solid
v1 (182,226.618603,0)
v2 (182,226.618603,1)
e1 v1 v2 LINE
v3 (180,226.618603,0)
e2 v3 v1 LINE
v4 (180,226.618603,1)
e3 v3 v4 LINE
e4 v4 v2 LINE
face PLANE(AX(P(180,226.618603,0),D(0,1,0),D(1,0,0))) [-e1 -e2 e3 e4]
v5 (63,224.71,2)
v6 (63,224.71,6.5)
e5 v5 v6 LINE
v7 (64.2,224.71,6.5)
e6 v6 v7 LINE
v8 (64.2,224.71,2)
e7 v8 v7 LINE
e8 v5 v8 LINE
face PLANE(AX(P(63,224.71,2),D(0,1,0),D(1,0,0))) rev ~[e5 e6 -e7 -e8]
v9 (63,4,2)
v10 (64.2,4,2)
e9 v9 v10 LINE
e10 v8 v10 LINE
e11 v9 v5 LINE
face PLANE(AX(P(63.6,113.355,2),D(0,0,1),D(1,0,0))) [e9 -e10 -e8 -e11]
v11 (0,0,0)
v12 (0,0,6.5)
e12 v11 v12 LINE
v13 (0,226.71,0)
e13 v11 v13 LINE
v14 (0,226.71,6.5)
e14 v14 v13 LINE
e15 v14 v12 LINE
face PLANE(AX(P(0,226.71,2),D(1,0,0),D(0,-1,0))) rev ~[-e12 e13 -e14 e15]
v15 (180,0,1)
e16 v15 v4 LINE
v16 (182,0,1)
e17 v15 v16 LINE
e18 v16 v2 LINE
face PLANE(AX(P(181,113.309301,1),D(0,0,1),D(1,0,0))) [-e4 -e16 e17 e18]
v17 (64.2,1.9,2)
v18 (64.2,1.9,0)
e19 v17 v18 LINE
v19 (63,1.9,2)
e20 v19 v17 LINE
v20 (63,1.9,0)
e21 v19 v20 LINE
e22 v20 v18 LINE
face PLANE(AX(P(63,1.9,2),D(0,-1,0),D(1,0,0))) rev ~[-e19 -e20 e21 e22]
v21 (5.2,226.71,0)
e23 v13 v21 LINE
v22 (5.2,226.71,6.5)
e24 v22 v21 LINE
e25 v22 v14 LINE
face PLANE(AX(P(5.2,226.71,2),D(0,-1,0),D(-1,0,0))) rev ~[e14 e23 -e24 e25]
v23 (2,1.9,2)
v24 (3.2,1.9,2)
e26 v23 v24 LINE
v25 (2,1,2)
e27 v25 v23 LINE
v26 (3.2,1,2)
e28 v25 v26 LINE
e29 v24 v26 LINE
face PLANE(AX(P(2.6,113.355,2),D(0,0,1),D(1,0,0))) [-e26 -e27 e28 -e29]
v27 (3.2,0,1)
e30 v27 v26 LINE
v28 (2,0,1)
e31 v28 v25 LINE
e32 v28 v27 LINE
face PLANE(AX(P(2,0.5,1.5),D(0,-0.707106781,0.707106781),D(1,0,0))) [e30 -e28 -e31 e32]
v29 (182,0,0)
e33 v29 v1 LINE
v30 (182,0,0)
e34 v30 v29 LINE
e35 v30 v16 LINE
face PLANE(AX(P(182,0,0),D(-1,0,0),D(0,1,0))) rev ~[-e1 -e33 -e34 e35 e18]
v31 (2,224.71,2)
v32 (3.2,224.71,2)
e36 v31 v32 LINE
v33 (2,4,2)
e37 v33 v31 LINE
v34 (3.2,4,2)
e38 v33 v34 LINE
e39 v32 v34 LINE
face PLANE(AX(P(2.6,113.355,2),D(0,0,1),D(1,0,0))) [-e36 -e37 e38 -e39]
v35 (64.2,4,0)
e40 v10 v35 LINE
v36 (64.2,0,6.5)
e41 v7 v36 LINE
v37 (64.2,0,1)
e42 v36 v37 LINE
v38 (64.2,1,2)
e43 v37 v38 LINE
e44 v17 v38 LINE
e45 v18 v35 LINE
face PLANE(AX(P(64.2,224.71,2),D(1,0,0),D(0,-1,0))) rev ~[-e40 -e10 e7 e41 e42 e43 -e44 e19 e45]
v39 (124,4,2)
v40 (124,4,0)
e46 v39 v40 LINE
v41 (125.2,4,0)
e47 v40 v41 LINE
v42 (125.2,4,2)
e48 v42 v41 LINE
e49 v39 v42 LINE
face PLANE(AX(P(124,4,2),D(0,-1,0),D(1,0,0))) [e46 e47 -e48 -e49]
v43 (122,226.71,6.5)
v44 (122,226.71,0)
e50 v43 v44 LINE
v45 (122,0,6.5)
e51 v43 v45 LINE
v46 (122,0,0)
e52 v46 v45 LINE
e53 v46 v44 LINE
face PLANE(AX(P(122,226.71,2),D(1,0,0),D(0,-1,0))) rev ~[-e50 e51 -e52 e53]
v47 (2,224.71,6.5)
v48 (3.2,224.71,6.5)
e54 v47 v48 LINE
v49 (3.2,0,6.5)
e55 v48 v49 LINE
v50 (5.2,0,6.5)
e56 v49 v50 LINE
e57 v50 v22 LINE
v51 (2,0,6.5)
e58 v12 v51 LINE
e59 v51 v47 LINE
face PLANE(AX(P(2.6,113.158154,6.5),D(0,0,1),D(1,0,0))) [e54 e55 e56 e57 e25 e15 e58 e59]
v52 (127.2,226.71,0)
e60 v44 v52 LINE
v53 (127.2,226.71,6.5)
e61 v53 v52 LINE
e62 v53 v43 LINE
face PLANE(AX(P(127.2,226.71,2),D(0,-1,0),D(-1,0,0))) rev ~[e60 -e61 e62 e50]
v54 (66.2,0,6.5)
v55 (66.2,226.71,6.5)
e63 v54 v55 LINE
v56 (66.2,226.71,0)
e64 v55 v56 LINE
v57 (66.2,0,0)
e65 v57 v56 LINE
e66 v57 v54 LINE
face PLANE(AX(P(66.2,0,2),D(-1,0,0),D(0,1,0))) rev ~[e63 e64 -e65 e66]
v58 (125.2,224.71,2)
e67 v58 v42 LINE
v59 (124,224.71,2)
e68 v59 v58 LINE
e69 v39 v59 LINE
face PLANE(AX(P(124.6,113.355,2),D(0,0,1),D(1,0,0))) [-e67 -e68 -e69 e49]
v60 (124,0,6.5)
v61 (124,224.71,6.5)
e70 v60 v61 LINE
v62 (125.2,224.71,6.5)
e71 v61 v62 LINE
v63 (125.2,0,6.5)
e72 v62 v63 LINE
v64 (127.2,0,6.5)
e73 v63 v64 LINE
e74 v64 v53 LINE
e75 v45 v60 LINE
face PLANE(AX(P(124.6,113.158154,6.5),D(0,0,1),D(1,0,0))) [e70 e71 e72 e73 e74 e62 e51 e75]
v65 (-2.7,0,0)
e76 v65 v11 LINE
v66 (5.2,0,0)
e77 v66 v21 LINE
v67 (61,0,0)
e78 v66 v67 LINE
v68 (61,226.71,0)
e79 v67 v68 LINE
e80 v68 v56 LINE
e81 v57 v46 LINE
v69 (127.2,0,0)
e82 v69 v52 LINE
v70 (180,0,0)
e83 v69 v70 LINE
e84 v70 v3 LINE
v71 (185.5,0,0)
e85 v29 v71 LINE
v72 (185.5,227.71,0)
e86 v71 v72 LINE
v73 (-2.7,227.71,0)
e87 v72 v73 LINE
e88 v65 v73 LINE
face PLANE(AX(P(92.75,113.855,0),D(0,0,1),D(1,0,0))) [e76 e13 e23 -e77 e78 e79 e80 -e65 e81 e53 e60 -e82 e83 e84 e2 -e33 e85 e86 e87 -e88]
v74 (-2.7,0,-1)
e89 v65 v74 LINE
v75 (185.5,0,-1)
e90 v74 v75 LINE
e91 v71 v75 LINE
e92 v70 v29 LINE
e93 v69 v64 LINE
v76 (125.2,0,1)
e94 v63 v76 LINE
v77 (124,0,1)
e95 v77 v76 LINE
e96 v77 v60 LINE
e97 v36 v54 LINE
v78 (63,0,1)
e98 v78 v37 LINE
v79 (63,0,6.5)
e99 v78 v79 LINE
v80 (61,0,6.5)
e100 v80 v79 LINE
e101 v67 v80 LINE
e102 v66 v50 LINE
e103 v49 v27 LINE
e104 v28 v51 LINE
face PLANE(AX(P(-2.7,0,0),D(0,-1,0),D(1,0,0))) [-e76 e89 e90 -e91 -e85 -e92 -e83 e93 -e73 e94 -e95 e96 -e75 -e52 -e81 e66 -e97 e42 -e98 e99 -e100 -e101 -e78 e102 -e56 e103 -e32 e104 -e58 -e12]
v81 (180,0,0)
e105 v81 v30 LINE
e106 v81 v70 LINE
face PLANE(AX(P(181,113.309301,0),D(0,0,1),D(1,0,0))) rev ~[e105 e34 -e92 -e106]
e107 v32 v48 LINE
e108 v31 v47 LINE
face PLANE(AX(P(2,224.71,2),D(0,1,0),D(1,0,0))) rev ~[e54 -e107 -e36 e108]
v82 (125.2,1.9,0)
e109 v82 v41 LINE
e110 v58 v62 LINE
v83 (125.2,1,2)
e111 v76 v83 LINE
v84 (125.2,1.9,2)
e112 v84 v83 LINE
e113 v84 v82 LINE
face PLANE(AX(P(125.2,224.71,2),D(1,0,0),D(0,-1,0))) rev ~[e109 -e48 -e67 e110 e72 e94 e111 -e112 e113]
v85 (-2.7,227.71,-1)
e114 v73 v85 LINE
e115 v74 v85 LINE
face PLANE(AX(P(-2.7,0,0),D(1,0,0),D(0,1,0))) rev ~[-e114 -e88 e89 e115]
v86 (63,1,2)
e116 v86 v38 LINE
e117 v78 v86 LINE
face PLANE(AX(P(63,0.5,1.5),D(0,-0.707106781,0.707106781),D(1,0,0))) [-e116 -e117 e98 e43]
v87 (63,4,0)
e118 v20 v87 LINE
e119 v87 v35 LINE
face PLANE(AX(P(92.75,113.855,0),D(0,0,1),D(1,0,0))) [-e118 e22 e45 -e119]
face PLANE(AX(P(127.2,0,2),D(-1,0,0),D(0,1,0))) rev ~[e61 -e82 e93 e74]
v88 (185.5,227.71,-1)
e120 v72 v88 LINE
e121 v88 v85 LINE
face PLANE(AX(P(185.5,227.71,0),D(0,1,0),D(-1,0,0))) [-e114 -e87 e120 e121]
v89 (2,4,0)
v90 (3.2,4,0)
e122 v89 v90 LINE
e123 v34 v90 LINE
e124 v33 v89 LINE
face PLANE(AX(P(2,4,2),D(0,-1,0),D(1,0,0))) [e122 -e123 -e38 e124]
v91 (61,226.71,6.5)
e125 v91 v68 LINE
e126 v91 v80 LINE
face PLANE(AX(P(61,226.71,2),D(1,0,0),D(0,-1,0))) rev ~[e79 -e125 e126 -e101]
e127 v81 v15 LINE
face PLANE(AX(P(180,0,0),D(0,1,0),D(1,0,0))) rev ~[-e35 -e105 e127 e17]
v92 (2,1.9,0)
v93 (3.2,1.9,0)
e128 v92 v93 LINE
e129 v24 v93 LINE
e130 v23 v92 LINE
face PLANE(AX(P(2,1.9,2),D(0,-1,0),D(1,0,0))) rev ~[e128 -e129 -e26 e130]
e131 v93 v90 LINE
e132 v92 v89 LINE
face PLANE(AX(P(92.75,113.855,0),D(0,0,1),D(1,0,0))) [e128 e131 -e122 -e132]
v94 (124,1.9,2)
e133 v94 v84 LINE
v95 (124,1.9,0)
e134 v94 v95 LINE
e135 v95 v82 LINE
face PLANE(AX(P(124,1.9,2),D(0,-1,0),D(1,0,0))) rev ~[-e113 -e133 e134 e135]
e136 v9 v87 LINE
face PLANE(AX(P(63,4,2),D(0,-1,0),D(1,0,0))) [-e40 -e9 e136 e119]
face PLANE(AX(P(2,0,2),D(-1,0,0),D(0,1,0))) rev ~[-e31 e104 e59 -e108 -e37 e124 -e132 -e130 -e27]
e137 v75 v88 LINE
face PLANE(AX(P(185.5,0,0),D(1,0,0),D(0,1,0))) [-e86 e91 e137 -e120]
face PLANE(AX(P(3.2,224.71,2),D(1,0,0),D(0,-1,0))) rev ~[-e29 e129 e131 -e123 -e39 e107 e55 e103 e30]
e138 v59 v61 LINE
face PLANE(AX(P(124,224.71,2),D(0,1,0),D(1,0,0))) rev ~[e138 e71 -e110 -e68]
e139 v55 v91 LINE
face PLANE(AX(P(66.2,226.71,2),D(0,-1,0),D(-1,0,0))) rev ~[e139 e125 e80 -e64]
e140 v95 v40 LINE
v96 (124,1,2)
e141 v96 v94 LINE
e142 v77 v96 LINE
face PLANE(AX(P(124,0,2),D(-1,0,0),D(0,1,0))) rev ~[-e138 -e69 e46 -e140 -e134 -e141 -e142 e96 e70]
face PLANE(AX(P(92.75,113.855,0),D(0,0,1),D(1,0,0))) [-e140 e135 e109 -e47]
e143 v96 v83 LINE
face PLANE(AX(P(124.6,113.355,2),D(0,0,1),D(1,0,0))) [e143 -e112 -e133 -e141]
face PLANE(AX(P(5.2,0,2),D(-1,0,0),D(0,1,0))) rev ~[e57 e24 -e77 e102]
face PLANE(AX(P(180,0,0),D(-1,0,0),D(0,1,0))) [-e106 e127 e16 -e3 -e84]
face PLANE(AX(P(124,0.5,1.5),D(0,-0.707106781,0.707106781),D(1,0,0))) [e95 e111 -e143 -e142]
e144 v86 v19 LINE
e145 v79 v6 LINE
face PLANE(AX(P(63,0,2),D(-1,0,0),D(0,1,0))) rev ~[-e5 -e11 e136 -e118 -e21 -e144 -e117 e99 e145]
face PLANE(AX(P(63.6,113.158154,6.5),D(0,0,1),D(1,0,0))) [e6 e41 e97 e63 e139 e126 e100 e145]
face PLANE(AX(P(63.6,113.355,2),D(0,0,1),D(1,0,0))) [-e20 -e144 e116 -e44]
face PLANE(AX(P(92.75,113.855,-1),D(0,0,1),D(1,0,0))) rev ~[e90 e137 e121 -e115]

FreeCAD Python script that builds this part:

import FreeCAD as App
import Part
import Sketcher

V = App.Vector


def edges_at(feature, points):
    """Names of the edges that pass closest to the given points."""
    edges = feature.Shape.Edges
    near = lambda p: min(range(len(edges)), key=lambda i: edges[i].distToShape(Part.Vertex(*p))[0])
    return sorted({f"Edge{near(p) + 1}" for p in points})

doc = App.newDocument("Part")
body = doc.addObject("PartDesign::Body", "Body")
body.AllowCompound = True

# Sketch on XY plane
sketch1 = body.newObject("Sketcher::SketchObject", "Sketch")
sketch1.AttachmentSupport = (doc.getObject("XY_Plane"), [""])
sketch1.MapMode = "FlatFace"
sketch1.addGeometry([
    Part.LineSegment(V(0, 227, 0), V(0, 0, 0)),  # 0
    Part.LineSegment(V(0, 0, 0), V(5, 0, 0)),  # 1
    Part.LineSegment(V(5, 0, 0), V(5, 227, 0)),  # 2
    Part.LineSegment(V(5, 227, 0), V(0, 227, 0)),  # 3
    Part.LineSegment(V(61, 227, 0), V(61, 0, 0)),  # 4
    Part.LineSegment(V(61, 0, 0), V(66, 0, 0)),  # 5
    Part.LineSegment(V(66, 0, 0), V(66, 227, 0)),  # 6
    Part.LineSegment(V(66, 227, 0), V(61, 227, 0)),  # 7
    Part.LineSegment(V(122, 227, 0), V(122, 0, 0)),  # 8
    Part.LineSegment(V(122, 0, 0), V(127, 0, 0)),  # 9
    Part.LineSegment(V(127, 0, 0), V(127, 227, 0)),  # 10
    Part.LineSegment(V(127, 227, 0), V(122, 227, 0)),  # 11
], False)
sketch1.addConstraint([
    Sketcher.Constraint("Coincident", 0, 2, 1, 1),
    Sketcher.Constraint("Coincident", 1, 2, 2, 1),
    Sketcher.Constraint("Coincident", 2, 2, 3, 1),
    Sketcher.Constraint("Coincident", 3, 2, 0, 1),
    Sketcher.Constraint("Coincident", 4, 2, 5, 1),
    Sketcher.Constraint("Coincident", 5, 2, 6, 1),
    Sketcher.Constraint("Coincident", 6, 2, 7, 1),
    Sketcher.Constraint("Coincident", 7, 2, 4, 1),
    Sketcher.Constraint("Coincident", 8, 2, 9, 1),
    Sketcher.Constraint("Coincident", 9, 2, 10, 1),
    Sketcher.Constraint("Coincident", 10, 2, 11, 1),
    Sketcher.Constraint("Coincident", 11, 2, 8, 1),
    Sketcher.Constraint("Vertical", 0),
    Sketcher.Constraint("Horizontal", 1),
    Sketcher.Constraint("Vertical", 2),
    Sketcher.Constraint("Horizontal", 3),
    Sketcher.Constraint("Vertical", 4),
    Sketcher.Constraint("Horizontal", 5),
    Sketcher.Constraint("Vertical", 6),
    Sketcher.Constraint("Horizontal", 7),
    Sketcher.Constraint("Vertical", 8),
    Sketcher.Constraint("Horizontal", 9),
    Sketcher.Constraint("Vertical", 10),
    Sketcher.Constraint("Horizontal", 11),
    Sketcher.Constraint("Coincident", 0, 2, -1, 1),
    Sketcher.Constraint("PointOnObject", 4, 2, -1),
    Sketcher.Constraint("PointOnObject", 8, 2, -1),
    Sketcher.Constraint("Horizontal", 3, 2, 6, 2),
    Sketcher.Constraint("Horizontal", 7, 2, 10, 2),
    Sketcher.Constraint("Equal", 3, 5),
    Sketcher.Constraint("Equal", 7, 9),
    Sketcher.Constraint("DistanceX", 1, 1, 1, 2, 5.2),
    Sketcher.Constraint("DistanceX", -1, 1, 4, 2, 61.0),
    Sketcher.Constraint("DistanceX", -1, 1, 8, 2, 122.0),
    Sketcher.Constraint("DistanceY", 0, 2, 0, 1, 226.71),
])
pad1 = body.newObject("PartDesign::Pad", "Pad")
pad1.Profile = sketch1
pad1.Length = 2

# Sketch on XY plane
sketch2 = body.newObject("Sketcher::SketchObject", "Sketch001")
sketch2.AttachmentSupport = (doc.getObject("XY_Plane"), [""])
sketch2.MapMode = "FlatFace"
sketch2.AttachmentOffset = App.Placement(V(0, 0, 2), App.Rotation())
sketch2.addGeometry([
    Part.LineSegment(V(0, 226.7, 0), V(0, 0, 0)),  # 0
    Part.LineSegment(V(0, 0, 0), V(2, 0, 0)),  # 1
    Part.LineSegment(V(2, 0, 0), V(2, 224.7, 0)),  # 2
    Part.LineSegment(V(2, 224.7, 0), V(3.2, 224.7, 0)),  # 3
    Part.LineSegment(V(3.2, 224.7, 0), V(3.2, 0, 0)),  # 4
    Part.LineSegment(V(3.2, 0, 0), V(5.2, 0, 0)),  # 5
    Part.LineSegment(V(5.2, 0, 0), V(5.2, 226.7, 0)),  # 6
    Part.LineSegment(V(5.2, 226.7, 0), V(0, 226.7, 0)),  # 7
    Part.LineSegment(V(61, 226.7, 0), V(61, 0, 0)),  # 8
    Part.LineSegment(V(61, 0, 0), V(63, 0, 0)),  # 9
    Part.LineSegment(V(63, 0, 0), V(63, 224.7, 0)),  # 10
    Part.LineSegment(V(63, 224.7, 0), V(64.2, 224.7, 0)),  # 11
    Part.LineSegment(V(64.2, 224.7, 0), V(64.2, 0, 0)),  # 12
    Part.LineSegment(V(64.2, 0, 0), V(66.2, 0, 0)),  # 13
    Part.LineSegment(V(66.2, 0, 0), V(66.2, 226.7, 0)),  # 14
    Part.LineSegment(V(66.2, 226.7, 0), V(61, 226.7, 0)),  # 15
    Part.LineSegment(V(122, 226.7, 0), V(122, 0, 0)),  # 16
    Part.LineSegment(V(122, 0, 0), V(124, 0, 0)),  # 17
    Part.LineSegment(V(124, 0, 0), V(124, 224.7, 0)),  # 18
    Part.LineSegment(V(124, 224.7, 0), V(125.2, 224.7, 0)),  # 19
    Part.LineSegment(V(125.2, 224.7, 0), V(125.2, 0, 0)),  # 20
    Part.LineSegment(V(125.2, 0, 0), V(127.2, 0, 0)),  # 21
    Part.LineSegment(V(127.2, 0, 0), V(127.2, 226.7, 0)),  # 22
    Part.LineSegment(V(127.2, 226.7, 0), V(122, 226.7, 0)),  # 23
], False)
sketch2.addConstraint([
    Sketcher.Constraint("Coincident", 0, 2, 1, 1),
    Sketcher.Constraint("Coincident", 1, 2, 2, 1),
    Sketcher.Constraint("Coincident", 2, 2, 3, 1),
    Sketcher.Constraint("Coincident", 3, 2, 4, 1),
    Sketcher.Constraint("Coincident", 4, 2, 5, 1),
    Sketcher.Constraint("Coincident", 5, 2, 6, 1),
    Sketcher.Constraint("Coincident", 6, 2, 7, 1),
    Sketcher.Constraint("Coincident", 7, 2, 0, 1),
    Sketcher.Constraint("Coincident", 8, 2, 9, 1),
    Sketcher.Constraint("Coincident", 9, 2, 10, 1),
    Sketcher.Constraint("Coincident", 10, 2, 11, 1),
    Sketcher.Constraint("Coincident", 11, 2, 12, 1),
    Sketcher.Constraint("Coincident", 12, 2, 13, 1),
    Sketcher.Constraint("Coincident", 13, 2, 14, 1),
    Sketcher.Constraint("Coincident", 14, 2, 15, 1),
    Sketcher.Constraint("Coincident", 15, 2, 8, 1),
    Sketcher.Constraint("Coincident", 16, 2, 17, 1),
    Sketcher.Constraint("Coincident", 17, 2, 18, 1),
    Sketcher.Constraint("Coincident", 18, 2, 19, 1),
    Sketcher.Constraint("Coincident", 19, 2, 20, 1),
    Sketcher.Constraint("Coincident", 20, 2, 21, 1),
    Sketcher.Constraint("Coincident", 21, 2, 22, 1),
    Sketcher.Constraint("Coincident", 22, 2, 23, 1),
    Sketcher.Constraint("Coincident", 23, 2, 16, 1),
    Sketcher.Constraint("Vertical", 0),
    Sketcher.Constraint("Horizontal", 1),
    Sketcher.Constraint("Vertical", 2),
    Sketcher.Constraint("Horizontal", 3),
    Sketcher.Constraint("Vertical", 4),
    Sketcher.Constraint("Horizontal", 5),
    Sketcher.Constraint("Vertical", 6),
    Sketcher.Constraint("Horizontal", 7),
    Sketcher.Constraint("Vertical", 8),
    Sketcher.Constraint("Horizontal", 9),
    Sketcher.Constraint("Vertical", 10),
    Sketcher.Constraint("Horizontal", 11),
    Sketcher.Constraint("Vertical", 12),
    Sketcher.Constraint("Horizontal", 13),
    Sketcher.Constraint("Vertical", 14),
    Sketcher.Constraint("Horizontal", 15),
    Sketcher.Constraint("Vertical", 16),
    Sketcher.Constraint("Horizontal", 17),
    Sketcher.Constraint("Vertical", 18),
    Sketcher.Constraint("Horizontal", 19),
    Sketcher.Constraint("Vertical", 20),
    Sketcher.Constraint("Horizontal", 21),
    Sketcher.Constraint("Vertical", 22),
    Sketcher.Constraint("Horizontal", 23),
    Sketcher.Constraint("Coincident", 0, 2, -1, 1),
    Sketcher.Constraint("PointOnObject", 4, 2, -1),
    Sketcher.Constraint("PointOnObject", 8, 2, -1),
    Sketcher.Constraint("PointOnObject", 12, 2, -1),
    Sketcher.Constraint("PointOnObject", 16, 2, -1),
    Sketcher.Constraint("PointOnObject", 20, 2, -1),
    Sketcher.Constraint("Horizontal", 3, 2, 10, 2),
    Sketcher.Constraint("Horizontal", 7, 2, 14, 2),
    Sketcher.Constraint("Horizontal", 11, 2, 18, 2),
    Sketcher.Constraint("Horizontal", 15, 2, 22, 2),
    Sketcher.Constraint("Equal", 1, 5),
    Sketcher.Constraint("Equal", 5, 9),
    Sketcher.Constraint("Equal", 3, 11),
    Sketcher.Constraint("Equal", 9, 13),
    Sketcher.Constraint("Equal", 13, 17),
    Sketcher.Constraint("Equal", 11, 19),
    Sketcher.Constraint("Equal", 17, 21),
    Sketcher.Constraint("DistanceX", 1, 1, 1, 2, 2.0),
    Sketcher.Constraint("DistanceX", 3, 1, 3, 2, 1.2),
    Sketcher.Constraint("DistanceX", -1, 1, 8, 2, 61.0),
    Sketcher.Constraint("DistanceX", -1, 1, 16, 2, 122.0),
    Sketcher.Constraint("DistanceY", 3, 2, 6, 2, 2.0),
    Sketcher.Constraint("DistanceY", 0, 2, 0, 1, 226.71),
])
pad2 = body.newObject("PartDesign::Pad", "Pad001")
pad2.Profile = sketch2
pad2.Length = 4.5

# Sketch on XY plane
sketch3 = body.newObject("Sketcher::SketchObject", "Sketch002")
sketch3.AttachmentSupport = (doc.getObject("XY_Plane"), [""])
sketch3.MapMode = "FlatFace"
sketch3.AttachmentOffset = App.Placement(V(0, 0, 2), App.Rotation())
sketch3.addGeometry([
    Part.LineSegment(V(2, 4, 0), V(2, 1.9, 0)),  # 0
    Part.LineSegment(V(2, 1.9, 0), V(3.2, 1.9, 0)),  # 1
    Part.LineSegment(V(3.2, 1.9, 0), V(3.2, 4, 0)),  # 2
    Part.LineSegment(V(3.2, 4, 0), V(2, 4, 0)),  # 3
    Part.LineSegment(V(63, 4, 0), V(63, 1.9, 0)),  # 4
    Part.LineSegment(V(63, 1.9, 0), V(64.2, 1.9, 0)),  # 5
    Part.LineSegment(V(64.2, 1.9, 0), V(64.2, 4, 0)),  # 6
    Part.LineSegment(V(64.2, 4, 0), V(63, 4, 0)),  # 7
    Part.LineSegment(V(124, 4, 0), V(124, 1.9, 0)),  # 8
    Part.LineSegment(V(124, 1.9, 0), V(125.2, 1.9, 0)),  # 9
    Part.LineSegment(V(125.2, 1.9, 0), V(125.2, 4, 0)),  # 10
    Part.LineSegment(V(125.2, 4, 0), V(124, 4, 0)),  # 11
], False)
sketch3.addConstraint([
    Sketcher.Constraint("Coincident", 0, 2, 1, 1),
    Sketcher.Constraint("Coincident", 1, 2, 2, 1),
    Sketcher.Constraint("Coincident", 2, 2, 3, 1),
    Sketcher.Constraint("Coincident", 3, 2, 0, 1),
    Sketcher.Constraint("Coincident", 4, 2, 5, 1),
    Sketcher.Constraint("Coincident", 5, 2, 6, 1),
    Sketcher.Constraint("Coincident", 6, 2, 7, 1),
    Sketcher.Constraint("Coincident", 7, 2, 4, 1),
    Sketcher.Constraint("Coincident", 8, 2, 9, 1),
    Sketcher.Constraint("Coincident", 9, 2, 10, 1),
    Sketcher.Constraint("Coincident", 10, 2, 11, 1),
    Sketcher.Constraint("Coincident", 11, 2, 8, 1),
    Sketcher.Constraint("Vertical", 0),
    Sketcher.Constraint("Horizontal", 1),
    Sketcher.Constraint("Vertical", 2),
    Sketcher.Constraint("Horizontal", 3),
    Sketcher.Constraint("Vertical", 4),
    Sketcher.Constraint("Horizontal", 5),
    Sketcher.Constraint("Vertical", 6),
    Sketcher.Constraint("Horizontal", 7),
    Sketcher.Constraint("Vertical", 8),
    Sketcher.Constraint("Horizontal", 9),
    Sketcher.Constraint("Vertical", 10),
    Sketcher.Constraint("Horizontal", 11),
    Sketcher.Constraint("Horizontal", 1, 2, 4, 2),
    Sketcher.Constraint("Horizontal", 3, 2, 6, 2),
    Sketcher.Constraint("Horizontal", 5, 2, 8, 2),
    Sketcher.Constraint("Horizontal", 7, 2, 10, 2),
    Sketcher.Constraint("Equal", 3, 5),
    Sketcher.Constraint("Equal", 7, 9),
    Sketcher.Constraint("DistanceX", 1, 1, 1, 2, 1.2),
    Sketcher.Constraint("DistanceY", 0, 2, 0, 1, 2.1),
    Sketcher.Constraint("DistanceX", -1, 1, 0, 2, 2.0),
    Sketcher.Constraint("DistanceY", -1, 1, 2, 2, 4.0),
    Sketcher.Constraint("DistanceX", -1, 1, 4, 2, 63.0),
    Sketcher.Constraint("DistanceX", -1, 1, 8, 2, 124.0),
])
pocket1 = body.newObject("PartDesign::Pocket", "Pocket")
pocket1.Profile = sketch3
pocket1.Length = 25

# Sketch on XY plane
sketch4 = body.newObject("Sketcher::SketchObject", "Sketch003")
sketch4.AttachmentSupport = (doc.getObject("XY_Plane"), [""])
sketch4.MapMode = "FlatFace"
sketch4.addGeometry([
    Part.LineSegment(V(186, 0, 0), V(186, 228, 0)),
    Part.LineSegment(V(186, 228, 0), V(-3, 228, 0)),
    Part.LineSegment(V(-3, 228, 0), V(-3, 0, 0)),
    Part.LineSegment(V(-3, 0, 0), V(186, 0, 0)),
], False)
sketch4.addConstraint([
    Sketcher.Constraint("Coincident", 0, 2, 1, 1),
    Sketcher.Constraint("Coincident", 1, 2, 2, 1),
    Sketcher.Constraint("Coincident", 2, 2, 3, 1),
    Sketcher.Constraint("Coincident", 3, 2, 0, 1),
    Sketcher.Constraint("Vertical", 0),
    Sketcher.Constraint("Horizontal", 1),
    Sketcher.Constraint("Vertical", 2),
    Sketcher.Constraint("Horizontal", 3),
    Sketcher.Constraint("PointOnObject", 2, 2, -1),
    Sketcher.Constraint("DistanceX", 1, 2, 1, 1, 188.2),
    Sketcher.Constraint("DistanceY", 0, 1, 0, 2, 227.71),
    Sketcher.Constraint("DistanceX", -1, 1, 0, 2, 185.5),
])
pad3 = body.newObject("PartDesign::Pad", "Pad002")
pad3.Profile = sketch4
pad3.Length = 1
pad3.Reversed = True

# Sketch on XY plane
sketch5 = body.newObject("Sketcher::SketchObject", "Sketch004")
sketch5.AttachmentSupport = (doc.getObject("XY_Plane"), [""])
sketch5.MapMode = "FlatFace"
sketch5.addGeometry([
    Part.LineSegment(V(180, 226.6, 0), V(180, 0, 0)),
    Part.LineSegment(V(180, 0, 0), V(182, 0, 0)),
    Part.LineSegment(V(182, 0, 0), V(182, 226.6, 0)),
    Part.LineSegment(V(182, 226.6, 0), V(180, 226.6, 0)),
], False)
sketch5.addConstraint([
    Sketcher.Constraint("Coincident", 0, 2, 1, 1),
    Sketcher.Constraint("Coincident", 1, 2, 2, 1),
    Sketcher.Constraint("Coincident", 2, 2, 3, 1),
    Sketcher.Constraint("Coincident", 3, 2, 0, 1),
    Sketcher.Constraint("Vertical", 0),
    Sketcher.Constraint("Horizontal", 1),
    Sketcher.Constraint("Vertical", 2),
    Sketcher.Constraint("Horizontal", 3),
    Sketcher.Constraint("PointOnObject", 0, 2, -1),
    Sketcher.Constraint("DistanceX", 1, 1, 1, 2, 2.0),
    Sketcher.Constraint("DistanceX", -1, 1, 0, 2, 180.0),
    Sketcher.Constraint("DistanceY", 0, 2, 0, 1, 226.618603),
])
pad4 = body.newObject("PartDesign::Pad", "Pad003")
pad4.Profile = sketch5
pad4.Length = 1
doc.recompute()

chamfer = body.newObject("PartDesign::Chamfer", "Chamfer")
chamfer.Base = (pad4, edges_at(pad4, [(2.6, 0, 2), (63.6, 0, 2), (124.6, 0, 2)]))
chamfer.Size = 1

doc.recompute()
